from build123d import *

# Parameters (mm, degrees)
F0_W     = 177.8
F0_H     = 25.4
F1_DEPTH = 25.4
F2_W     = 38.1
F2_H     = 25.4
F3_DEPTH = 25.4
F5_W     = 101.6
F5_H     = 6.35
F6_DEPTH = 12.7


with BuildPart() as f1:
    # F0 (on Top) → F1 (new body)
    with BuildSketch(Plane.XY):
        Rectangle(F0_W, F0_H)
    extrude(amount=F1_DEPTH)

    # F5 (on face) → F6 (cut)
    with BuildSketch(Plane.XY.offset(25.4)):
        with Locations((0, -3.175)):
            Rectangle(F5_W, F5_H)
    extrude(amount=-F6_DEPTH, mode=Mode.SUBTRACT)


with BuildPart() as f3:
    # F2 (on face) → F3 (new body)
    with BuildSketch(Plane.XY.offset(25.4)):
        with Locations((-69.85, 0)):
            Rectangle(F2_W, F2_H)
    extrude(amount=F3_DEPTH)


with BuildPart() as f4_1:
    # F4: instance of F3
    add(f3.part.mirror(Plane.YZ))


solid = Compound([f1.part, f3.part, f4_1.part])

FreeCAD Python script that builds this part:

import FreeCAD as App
import Part
import Sketcher

V = App.Vector
Q = App.Units.Quantity


def add_polygon(sketch, points):
    """Adds a closed chain of lines whose ends are joined by coincident constraints."""
    first, n = sketch.GeometryCount, len(points)
    for a, b in zip(points, points[1:] + points[:1]):
        sketch.addGeometry(Part.LineSegment(App.Vector(*a, 0), App.Vector(*b, 0)), False)
    for i in range(n):
        sketch.addConstraint(Sketcher.Constraint("Coincident", first + i, 2, first + (i + 1) % n, 1))

doc = App.newDocument("Part")
body = doc.addObject("PartDesign::Body", "Body")

# Sketch on XY plane
sketch1 = doc.addObject("Sketcher::SketchObject", "Sketch")
body.addObject(sketch1)
sketch1.AttachmentSupport = (doc.XY_Plane, [""])
sketch1.MapMode = "FlatFace"
add_polygon(sketch1, [(-89, 13), (-89, -13), (89, -13), (89, 13)])  # lines 0-3
sketch1.addConstraint(Sketcher.Constraint("Vertical", 0))
sketch1.addConstraint(Sketcher.Constraint("Horizontal", 1))
sketch1.addConstraint(Sketcher.Constraint("Vertical", 2))
sketch1.addConstraint(Sketcher.Constraint("Horizontal", 3))
sketch1.addConstraint(Sketcher.Constraint("Symmetric", 0, 2, 2, 2, -1, 1))
sketch1.addConstraint(Sketcher.Constraint("DistanceX", 1, 1, 1, 2, Q("7 in")))
sketch1.addConstraint(Sketcher.Constraint("DistanceY", 0, 2, 0, 1, Q("1 in")))
pad1 = doc.addObject("PartDesign::Pad", "Pad")
body.addObject(pad1)
pad1.Profile = sketch1
pad1.Length = Q("1 in")

# Sketch on XY plane
sketch2 = doc.addObject("Sketcher::SketchObject", "Sketch001")
body.addObject(sketch2)
sketch2.AttachmentSupport = (doc.XY_Plane, [""])
sketch2.MapMode = "FlatFace"
sketch2.AttachmentOffset = App.Placement(V(0, 0, 1 * 25.4), App.Rotation())
add_polygon(sketch2, [(-51, 0), (-51, -6), (51, -6), (51, 0)])  # lines 0-3
sketch2.addConstraint(Sketcher.Constraint("Vertical", 0))
sketch2.addConstraint(Sketcher.Constraint("Horizontal", 1))
sketch2.addConstraint(Sketcher.Constraint("Vertical", 2))
sketch2.addConstraint(Sketcher.Constraint("Horizontal", 3))
sketch2.addConstraint(Sketcher.Constraint("Symmetric", 2, 2, 3, 2, -1, 1))
sketch2.addConstraint(Sketcher.Constraint("DistanceX", 1, 1, 1, 2, Q("4 in")))
sketch2.addConstraint(Sketcher.Constraint("DistanceY", 0, 2, 0, 1, Q("0.25 in")))
pocket1 = doc.addObject("PartDesign::Pocket", "Pocket")
body.addObject(pocket1)
pocket1.Profile = sketch2
pocket1.Length = Q("0.5 in")
body2 = doc.addObject("PartDesign::Body", "Body001")

# Sketch on XY plane
sketch3 = doc.addObject("Sketcher::SketchObject", "Sketch002")
body2.addObject(sketch3)
sketch3.AttachmentSupport = (doc.getObject("XY_Plane001"), [""])
sketch3.MapMode = "FlatFace"
sketch3.AttachmentOffset = App.Placement(V(0, 0, 1 * 25.4), App.Rotation())
add_polygon(sketch3, [(-89, 13), (-89, -13), (-51, -13), (-51, 13)])  # lines 0-3
sketch3.addConstraint(Sketcher.Constraint("Vertical", 0))
sketch3.addConstraint(Sketcher.Constraint("Horizontal", 1))
sketch3.addConstraint(Sketcher.Constraint("Vertical", 2))
sketch3.addConstraint(Sketcher.Constraint("Horizontal", 3))
sketch3.addConstraint(Sketcher.Constraint("DistanceY", 0, 2, 0, 1, Q("1 in")))
sketch3.addConstraint(Sketcher.Constraint("DistanceX", 1, 1, 1, 2, Q("1.5 in")))
sketch3.addConstraint(Sketcher.Constraint("DistanceX", 1, 2, -1, 1, Q("2 in")))
sketch3.addConstraint(Sketcher.Constraint("DistanceY", 0, 2, -1, 1, Q("0.5 in")))
pad2 = doc.addObject("PartDesign::Pad", "Pad001")
body2.addObject(pad2)
pad2.Profile = sketch3
pad2.Length = Q("1 in")
body3 = doc.addObject("PartDesign::Body", "Body002")
doc.recompute()

mirroring = doc.addObject("Part::Mirroring", "Mirroring")
mirroring.Source = body2
mirroring.Base = V(0, 0, 0)
mirroring.Normal = V(1, 0, 0)
body3.BaseFeature = mirroring
doc.recompute()
mirroring.Visibility = False

doc.recompute()
